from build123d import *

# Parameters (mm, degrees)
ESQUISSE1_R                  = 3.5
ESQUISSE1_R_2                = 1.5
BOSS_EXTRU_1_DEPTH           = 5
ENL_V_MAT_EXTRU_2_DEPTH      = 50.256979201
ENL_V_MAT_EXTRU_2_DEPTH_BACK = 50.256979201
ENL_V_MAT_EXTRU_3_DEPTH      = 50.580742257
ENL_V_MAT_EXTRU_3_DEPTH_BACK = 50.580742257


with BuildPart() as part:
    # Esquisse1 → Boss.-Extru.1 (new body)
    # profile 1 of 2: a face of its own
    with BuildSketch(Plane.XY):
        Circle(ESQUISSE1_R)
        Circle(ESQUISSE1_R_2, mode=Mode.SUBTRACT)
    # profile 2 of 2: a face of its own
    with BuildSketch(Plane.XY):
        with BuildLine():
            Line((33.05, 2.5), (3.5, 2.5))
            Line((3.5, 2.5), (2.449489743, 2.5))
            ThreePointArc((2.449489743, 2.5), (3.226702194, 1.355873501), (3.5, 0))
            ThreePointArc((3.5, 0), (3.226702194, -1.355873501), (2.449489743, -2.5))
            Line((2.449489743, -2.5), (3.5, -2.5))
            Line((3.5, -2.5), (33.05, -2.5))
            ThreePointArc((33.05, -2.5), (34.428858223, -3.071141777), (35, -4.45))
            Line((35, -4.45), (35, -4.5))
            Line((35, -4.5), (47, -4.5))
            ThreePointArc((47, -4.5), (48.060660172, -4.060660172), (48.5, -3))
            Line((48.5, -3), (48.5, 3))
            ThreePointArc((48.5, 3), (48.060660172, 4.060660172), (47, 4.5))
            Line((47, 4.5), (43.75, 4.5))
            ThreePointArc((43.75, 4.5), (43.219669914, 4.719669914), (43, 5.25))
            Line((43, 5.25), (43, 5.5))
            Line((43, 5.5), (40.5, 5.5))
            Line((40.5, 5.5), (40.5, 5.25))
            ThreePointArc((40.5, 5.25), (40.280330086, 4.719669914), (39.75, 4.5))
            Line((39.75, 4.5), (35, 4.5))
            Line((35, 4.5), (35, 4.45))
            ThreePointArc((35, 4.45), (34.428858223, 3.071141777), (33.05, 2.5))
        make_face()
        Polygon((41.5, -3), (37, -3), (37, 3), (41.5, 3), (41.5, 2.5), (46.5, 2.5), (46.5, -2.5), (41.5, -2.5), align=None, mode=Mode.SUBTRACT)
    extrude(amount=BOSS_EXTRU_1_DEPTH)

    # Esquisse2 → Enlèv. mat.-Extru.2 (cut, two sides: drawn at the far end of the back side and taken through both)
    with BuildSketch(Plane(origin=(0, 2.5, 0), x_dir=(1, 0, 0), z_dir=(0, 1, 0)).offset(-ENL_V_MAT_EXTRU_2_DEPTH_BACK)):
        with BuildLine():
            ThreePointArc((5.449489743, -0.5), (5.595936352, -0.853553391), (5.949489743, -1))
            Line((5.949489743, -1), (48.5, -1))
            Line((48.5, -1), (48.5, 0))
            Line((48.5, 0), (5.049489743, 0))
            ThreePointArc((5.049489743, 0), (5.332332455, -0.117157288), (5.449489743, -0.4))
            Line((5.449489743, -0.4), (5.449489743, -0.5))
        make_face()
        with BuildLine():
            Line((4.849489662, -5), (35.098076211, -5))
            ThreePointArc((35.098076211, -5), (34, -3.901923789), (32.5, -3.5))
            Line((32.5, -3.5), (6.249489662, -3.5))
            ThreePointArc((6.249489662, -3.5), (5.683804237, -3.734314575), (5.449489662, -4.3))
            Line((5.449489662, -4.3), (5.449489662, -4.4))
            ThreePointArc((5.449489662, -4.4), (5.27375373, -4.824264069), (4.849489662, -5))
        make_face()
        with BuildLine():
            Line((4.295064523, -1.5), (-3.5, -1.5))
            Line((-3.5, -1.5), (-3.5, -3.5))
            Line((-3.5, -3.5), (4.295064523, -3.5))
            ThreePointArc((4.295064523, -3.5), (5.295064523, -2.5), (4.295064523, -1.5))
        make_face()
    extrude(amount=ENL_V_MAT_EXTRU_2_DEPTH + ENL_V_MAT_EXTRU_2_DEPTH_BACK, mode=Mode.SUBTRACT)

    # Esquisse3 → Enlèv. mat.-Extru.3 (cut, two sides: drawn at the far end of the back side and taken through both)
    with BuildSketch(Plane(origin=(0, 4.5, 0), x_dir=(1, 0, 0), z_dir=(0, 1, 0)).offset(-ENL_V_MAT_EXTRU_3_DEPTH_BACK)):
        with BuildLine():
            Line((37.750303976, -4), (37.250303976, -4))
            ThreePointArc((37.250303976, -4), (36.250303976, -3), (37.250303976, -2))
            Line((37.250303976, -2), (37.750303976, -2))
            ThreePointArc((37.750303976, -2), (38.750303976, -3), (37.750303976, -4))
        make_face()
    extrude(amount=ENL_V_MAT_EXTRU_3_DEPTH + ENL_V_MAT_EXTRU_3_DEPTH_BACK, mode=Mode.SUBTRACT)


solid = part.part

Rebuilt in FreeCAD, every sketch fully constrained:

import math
import FreeCAD as App
import Part
import Sketcher

V = App.Vector

doc = App.newDocument("Part")
params = doc.addObject("Spreadsheet::Sheet", "Params")
for row, (alias, value) in enumerate([
    ("sketch1_diameter", "3 mm"),
    ("sketch1_radius", "3.5 mm"),
    ("sketch1_width", "12 mm"),
    ("sketch1_width2", "5 mm"),
    ("sketch1_height", "6 mm"),
    ("pad1_length", "5 mm"),
    ("sketch2_radius", "3 mm"),
    ("sketch2_radius2", "1 mm"),
    ("sketch2_radius3", "0.5 mm"),
    ("sketch2_radius4", "0.4 mm"),
    ("sketch2_radius5", "0.8 mm"),
    ("sketch3_radius", "1 mm"),
    ("sketch3_width", "0.5 mm"),
], start=1):
    params.set(f"A{row}", alias)
    params.set(f"B{row}", "=" + value)
    params.setAlias(f"B{row}", alias)

body = doc.addObject("PartDesign::Body", "Body")

# Sketch on XY plane
sketch1 = body.newObject("Sketcher::SketchObject", "Sketch")
sketch1.AttachmentSupport = (doc.getObject("XY_Plane"), [""])
sketch1.MapMode = "FlatFace"
sketch1.addGeometry([
    Part.ArcOfCircle(Part.Circle(V(0, 0, 0), V(0, 0, 1), 3.5), math.radians(46), math.radians(314)),  # 0
    Part.LineSegment(V(2.449, -2.5, 0), V(33.05, -2.5, 0)),  # 1
    Part.ArcOfCircle(Part.Circle(V(33.05, -4.45, 0), V(0, 0, 1), 1.95), math.radians(0), math.radians(90)),  # 2
    Part.LineSegment(V(35, -4.45, 0), V(35, -4.5, 0)),  # 3
    Part.LineSegment(V(35, -4.5, 0), V(47, -4.5, 0)),  # 4
    Part.ArcOfCircle(Part.Circle(V(47, -3, 0), V(0, 0, 1), 1.5), math.radians(-90), math.radians(0)),  # 5
    Part.LineSegment(V(48.5, -3, 0), V(48.5, 3, 0)),  # 6
    Part.ArcOfCircle(Part.Circle(V(47, 3, 0), V(0, 0, 1), 1.5), math.radians(0), math.radians(90)),  # 7
    Part.LineSegment(V(47, 4.5, 0), V(43.75, 4.5, 0)),  # 8
    Part.ArcOfCircle(Part.Circle(V(43.75, 5.25, 0), V(0, 0, 1), 0.75), math.radians(180), math.radians(270)),  # 9
    Part.LineSegment(V(43, 5.25, 0), V(43, 5.5, 0)),  # 10
    Part.LineSegment(V(43, 5.5, 0), V(40.5, 5.5, 0)),  # 11
    Part.LineSegment(V(40.5, 5.5, 0), V(40.5, 5.25, 0)),  # 12
    Part.ArcOfCircle(Part.Circle(V(39.75, 5.25, 0), V(0, 0, 1), 0.75), math.radians(-90), math.radians(0)),  # 13
    Part.LineSegment(V(39.75, 4.5, 0), V(35, 4.5, 0)),  # 14
    Part.LineSegment(V(35, 4.5, 0), V(35, 4.45, 0)),  # 15
    Part.ArcOfCircle(Part.Circle(V(33.05, 4.45, 0), V(0, 0, 1), 1.95), math.radians(-90), math.radians(0)),  # 16
    Part.LineSegment(V(33.05, 2.5, 0), V(2.449, 2.5, 0)),  # 17
    Part.Circle(V(0, 0, 0), V(0, 0, 1), 1.5),  # 18
    Part.LineSegment(V(41.5, -3, 0), V(37, -3, 0)),  # 19
    Part.LineSegment(V(37, -3, 0), V(37, 3, 0)),  # 20
    Part.LineSegment(V(37, 3, 0), V(41.5, 3, 0)),  # 21
    Part.LineSegment(V(41.5, 3, 0), V(41.5, 2.5, 0)),  # 22
    Part.LineSegment(V(41.5, 2.5, 0), V(46.5, 2.5, 0)),  # 23
    Part.LineSegment(V(46.5, 2.5, 0), V(46.5, -2.5, 0)),  # 24
    Part.LineSegment(V(46.5, -2.5, 0), V(41.5, -2.5, 0)),  # 25
    Part.LineSegment(V(41.5, -2.5, 0), V(41.5, -3, 0)),  # 26
], False)
sketch1.addConstraint([
    Sketcher.Constraint("Coincident", 0, 2, 1, 1),
    Sketcher.Constraint("Tangent", 1, 2, 2, 2),
    Sketcher.Constraint("Tangent", 2, 1, 3, 1),
    Sketcher.Constraint("Coincident", 3, 2, 4, 1),
    Sketcher.Constraint("Tangent", 4, 2, 5, 1),
    Sketcher.Constraint("Tangent", 5, 2, 6, 1),
    Sketcher.Constraint("Tangent", 6, 2, 7, 1),
    Sketcher.Constraint("Tangent", 7, 2, 8, 1),
    Sketcher.Constraint("Tangent", 8, 2, 9, 2),
    Sketcher.Constraint("Tangent", 9, 1, 10, 1),
    Sketcher.Constraint("Coincident", 10, 2, 11, 1),
    Sketcher.Constraint("Coincident", 11, 2, 12, 1),
    Sketcher.Constraint("Tangent", 12, 2, 13, 2),
    Sketcher.Constraint("Tangent", 13, 1, 14, 1),
    Sketcher.Constraint("Coincident", 14, 2, 15, 1),
    Sketcher.Constraint("Tangent", 15, 2, 16, 2),
    Sketcher.Constraint("Tangent", 16, 1, 17, 1),
    Sketcher.Constraint("Coincident", 17, 2, 0, 1),
    Sketcher.Constraint("Coincident", 19, 2, 20, 1),
    Sketcher.Constraint("Coincident", 20, 2, 21, 1),
    Sketcher.Constraint("Coincident", 21, 2, 22, 1),
    Sketcher.Constraint("Coincident", 22, 2, 23, 1),
    Sketcher.Constraint("Coincident", 23, 2, 24, 1),
    Sketcher.Constraint("Coincident", 24, 2, 25, 1),
    Sketcher.Constraint("Coincident", 25, 2, 26, 1),
    Sketcher.Constraint("Coincident", 26, 2, 19, 1),
    Sketcher.Constraint("Horizontal", 1),
    Sketcher.Constraint("Vertical", 3),
    Sketcher.Constraint("Horizontal", 4),
    Sketcher.Constraint("Vertical", 6),
    Sketcher.Constraint("Horizontal", 8),
    Sketcher.Constraint("Vertical", 10),
    Sketcher.Constraint("Horizontal", 11),
    Sketcher.Constraint("Vertical", 12),
    Sketcher.Constraint("Horizontal", 14),
    Sketcher.Constraint("Vertical", 15),
    Sketcher.Constraint("Horizontal", 17),
    Sketcher.Constraint("Horizontal", 19),
    Sketcher.Constraint("Vertical", 20),
    Sketcher.Constraint("Horizontal", 21),
    Sketcher.Constraint("Vertical", 22),
    Sketcher.Constraint("Horizontal", 23),
    Sketcher.Constraint("Vertical", 24),
    Sketcher.Constraint("Horizontal", 25),
    Sketcher.Constraint("Vertical", 26),
    Sketcher.Constraint("Coincident", 0, 3, -1, 1),
    Sketcher.Constraint("Coincident", 18, 3, -1, 1),
    Sketcher.Constraint("Equal", 5, 7),
    Sketcher.Constraint("Equal", 9, 13),
    Sketcher.Constraint("Equal", 2, 16),
    Sketcher.Constraint("Equal", 7, 18),
    Sketcher.Constraint("Symmetric", 2, 3, 16, 3, -1),
    Sketcher.Constraint("Symmetric", 22, 2, 25, 2, -1),
    Sketcher.Constraint("Horizontal", 9, 3, 13, 3),
    Sketcher.Constraint("Horizontal", 5, 2, 19, 2),
    Sketcher.Constraint("Horizontal", 6, 2, 20, 2),
    Sketcher.Constraint("Horizontal", 17, 2, 22, 2),
    Sketcher.Constraint("Equal", 3, 15),
    Sketcher.Constraint("Equal", 25, 24),
    Sketcher.Constraint("Diameter", 18, 3.0),
    Sketcher.Constraint("Radius", 0, 3.5),
    Sketcher.Constraint("DistanceX", 4, 1, 4, 2, 12.0),
    Sketcher.Constraint("DistanceX", 23, 1, 23, 2, 5.0),
    Sketcher.Constraint("DistanceY", 6, 1, 6, 2, 6.0),
    Sketcher.Constraint("Radius", 2, 1.95),
    Sketcher.Constraint("Radius", 9, 0.75),
    Sketcher.Constraint("DistanceX", 11, 2, 11, 1, 2.5),
    Sketcher.Constraint("DistanceX", 19, 2, 19, 1, 4.5),
    Sketcher.Constraint("DistanceX", -1, 1, 5, 3, 47.0),
    Sketcher.Constraint("DistanceX", -1, 1, 9, 1, 43.0),
    Sketcher.Constraint("DistanceX", -1, 1, 19, 2, 37.0),
    Sketcher.Constraint("DistanceY", 8, 2, 10, 2, 1.0),
])
sketch1.setExpression("Constraints[59]", "Params.sketch1_diameter")
sketch1.setExpression("Constraints[60]", "Params.sketch1_radius")
sketch1.setExpression("Constraints[61]", "Params.sketch1_width")
sketch1.setExpression("Constraints[62]", "Params.sketch1_width2")
sketch1.setExpression("Constraints[63]", "Params.sketch1_height")
pad1 = body.newObject("PartDesign::Pad", "Pad")
pad1.Profile = sketch1
pad1.setExpression("Length", "Params.pad1_length")

# Sketch on XZ plane
sketch2 = body.newObject("Sketcher::SketchObject", "Sketch001")
sketch2.AttachmentSupport = (doc.getObject("XZ_Plane"), [""])
sketch2.MapMode = "FlatFace"
sketch2.AttachmentOffset = App.Placement(V(0, 0, -2.5), App.Rotation())
sketch2.addGeometry([
    Part.ArcOfCircle(Part.Circle(V(5.95, 0.5, 0), V(0, 0, 1), 0.5), math.radians(90), math.radians(180)),  # 0
    Part.LineSegment(V(5.95, 1, 0), V(48.5, 1, 0)),  # 1
    Part.LineSegment(V(48.5, 1, 0), V(48.5, 0, 0)),  # 2
    Part.LineSegment(V(48.5, 0, 0), V(5.05, 0, 0)),  # 3
    Part.ArcOfCircle(Part.Circle(V(5.05, 0.4, 0), V(0, 0, 1), 0.4), math.radians(-90), math.radians(0)),  # 4
    Part.LineSegment(V(5.45, 0.4, 0), V(5.45, 0.5, 0)),  # 5
    Part.LineSegment(V(4.85, 5, 0), V(35.1, 5, 0)),  # 6
    Part.ArcOfCircle(Part.Circle(V(32.5, 6.5, 0), V(0, 0, 1), 3), math.radians(-90), math.radians(-30)),  # 7
    Part.LineSegment(V(32.5, 3.5, 0), V(6.25, 3.5, 0)),  # 8
    Part.ArcOfCircle(Part.Circle(V(6.25, 4.3, 0), V(0, 0, 1), 0.8), math.radians(180), math.radians(270)),  # 9
    Part.LineSegment(V(5.45, 4.3, 0), V(5.45, 4.4, 0)),  # 10
    Part.ArcOfCircle(Part.Circle(V(4.85, 4.4, 0), V(0, 0, 1), 0.6), math.radians(0), math.radians(90)),  # 11
    Part.LineSegment(V(4.3, 1.5, 0), V(-3.5, 1.5, 0)),  # 12
    Part.LineSegment(V(-3.5, 1.5, 0), V(-3.5, 3.5, 0)),  # 13
    Part.LineSegment(V(-3.5, 3.5, 0), V(4.3, 3.5, 0)),  # 14
    Part.ArcOfCircle(Part.Circle(V(4.3, 2.5, 0), V(0, 0, 1), 1), math.radians(-90), math.radians(90)),  # 15
], False)
sketch2.addConstraint([
    Sketcher.Constraint("Tangent", 0, 1, 1, 1),
    Sketcher.Constraint("Coincident", 1, 2, 2, 1),
    Sketcher.Constraint("Coincident", 2, 2, 3, 1),
    Sketcher.Constraint("Tangent", 3, 2, 4, 1),
    Sketcher.Constraint("Tangent", 4, 2, 5, 1),
    Sketcher.Constraint("Tangent", 5, 2, 0, 2),
    Sketcher.Constraint("Coincident", 6, 2, 7, 2),
    Sketcher.Constraint("Tangent", 7, 1, 8, 1),
    Sketcher.Constraint("Tangent", 8, 2, 9, 2),
    Sketcher.Constraint("Tangent", 9, 1, 10, 1),
    Sketcher.Constraint("Tangent", 10, 2, 11, 1),
    Sketcher.Constraint("Tangent", 11, 2, 6, 1),
    Sketcher.Constraint("Coincident", 12, 2, 13, 1),
    Sketcher.Constraint("Coincident", 13, 2, 14, 1),
    Sketcher.Constraint("Tangent", 14, 2, 15, 2),
    Sketcher.Constraint("Tangent", 15, 1, 12, 1),
    Sketcher.Constraint("Horizontal", 1),
    Sketcher.Constraint("Vertical", 2),
    Sketcher.Constraint("Horizontal", 3),
    Sketcher.Constraint("Vertical", 5),
    Sketcher.Constraint("Horizontal", 6),
    Sketcher.Constraint("Horizontal", 8),
    Sketcher.Constraint("Vertical", 10),
    Sketcher.Constraint("Horizontal", 12),
    Sketcher.Constraint("Vertical", 13),
    Sketcher.Constraint("Horizontal", 14),
    Sketcher.Constraint("PointOnObject", 2, 2, -1),
    Sketcher.Constraint("Horizontal", 8, 2, 13, 2),
    Sketcher.Constraint("Vertical", 5, 2, 9, 1),
    Sketcher.Constraint("Equal", 5, 10),
    Sketcher.Constraint("Radius", 7, 3.0),
    Sketcher.Constraint("Radius", 15, 1.0),
    Sketcher.Constraint("Radius", 0, 0.5),
    Sketcher.Constraint("Radius", 4, 0.4),
    Sketcher.Constraint("Radius", 9, 0.8),
    Sketcher.Constraint("Radius", 11, 0.6),
    Sketcher.Constraint("DistanceY", 2, 2, 2, 1, 1.0),
    Sketcher.Constraint("DistanceY", -1, 1, 6, 2, 5.0),
    Sketcher.Constraint("DistanceX", 7, 3, 1, 2, 16.0),
    Sketcher.Constraint("DistanceX", -1, 1, 7, 3, 32.5),
    Sketcher.Constraint("DistanceX", 12, 2, -1, 1, 3.5),
    Sketcher.Constraint("DistanceX", 1, 1, 1, 2, 42.55051),
    Sketcher.Constraint("DistanceX", 12, 2, 12, 1, 7.795065),
])
sketch2.setExpression("Constraints[30]", "Params.sketch2_radius")
sketch2.setExpression("Constraints[31]", "Params.sketch2_radius2")
sketch2.setExpression("Constraints[32]", "Params.sketch2_radius3")
sketch2.setExpression("Constraints[33]", "Params.sketch2_radius4")
sketch2.setExpression("Constraints[34]", "Params.sketch2_radius5")
pocket1 = body.newObject("PartDesign::Pocket", "Pocket")
pocket1.Profile = sketch2
pocket1.Type = "ThroughAll"
pocket1.Midplane = True

# Sketch on XZ plane
sketch3 = body.newObject("Sketcher::SketchObject", "Sketch002")
sketch3.AttachmentSupport = (doc.getObject("XZ_Plane"), [""])
sketch3.MapMode = "FlatFace"
sketch3.AttachmentOffset = App.Placement(V(0, 0, -4.5), App.Rotation())
sketch3.addGeometry([
    Part.LineSegment(V(37.3, 4, 0), V(37.8, 4, 0)),
    Part.ArcOfCircle(Part.Circle(V(37.8, 3, 0), V(0, 0, 1), 1), math.radians(-90), math.radians(90)),
    Part.LineSegment(V(37.8, 2, 0), V(37.3, 2, 0)),
    Part.ArcOfCircle(Part.Circle(V(37.3, 3, 0), V(0, 0, 1), 1), math.radians(90), math.radians(270)),
], False)
sketch3.addConstraint([
    Sketcher.Constraint("Tangent", 0, 2, 1, 2),
    Sketcher.Constraint("Tangent", 1, 1, 2, 1),
    Sketcher.Constraint("Tangent", 2, 2, 3, 2),
    Sketcher.Constraint("Tangent", 3, 1, 0, 1),
    Sketcher.Constraint("Horizontal", 0),
    Sketcher.Constraint("Horizontal", 2),
    Sketcher.Constraint("Radius", 1, 1.0),
    Sketcher.Constraint("DistanceX", 0, 1, 0, 2, 0.5),
    Sketcher.Constraint("DistanceY", -1, 1, 1, 3, 3.0),
    Sketcher.Constraint("DistanceX", -1, 1, 1, 3, 37.750304),
])
sketch3.setExpression("Constraints[6]", "Params.sketch3_radius")
sketch3.setExpression("Constraints[7]", "Params.sketch3_width")
pocket2 = body.newObject("PartDesign::Pocket", "Pocket001")
pocket2.Profile = sketch3
pocket2.Type = "ThroughAll"
pocket2.Midplane = True

doc.recompute()
